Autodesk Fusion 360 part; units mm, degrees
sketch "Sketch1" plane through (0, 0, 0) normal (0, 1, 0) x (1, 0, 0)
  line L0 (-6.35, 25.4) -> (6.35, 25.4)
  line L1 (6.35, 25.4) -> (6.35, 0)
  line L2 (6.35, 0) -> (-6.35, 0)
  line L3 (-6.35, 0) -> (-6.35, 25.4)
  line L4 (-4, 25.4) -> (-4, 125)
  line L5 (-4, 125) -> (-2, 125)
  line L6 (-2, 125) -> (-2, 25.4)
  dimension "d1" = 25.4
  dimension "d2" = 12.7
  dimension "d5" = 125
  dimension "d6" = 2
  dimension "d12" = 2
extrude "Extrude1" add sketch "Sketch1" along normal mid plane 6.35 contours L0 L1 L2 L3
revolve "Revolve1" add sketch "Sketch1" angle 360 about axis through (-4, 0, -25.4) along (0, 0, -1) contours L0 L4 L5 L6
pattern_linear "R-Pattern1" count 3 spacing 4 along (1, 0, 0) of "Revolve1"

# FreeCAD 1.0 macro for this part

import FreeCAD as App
import Part
import Sketcher
Q = App.Units.Quantity

doc = App.newDocument("Part")
body = doc.addObject("PartDesign::Body", "Body")

# Sketch on XZ plane
sketch1 = body.newObject("Sketcher::SketchObject", "Sketch")
sketch1.AttachmentSupport = (doc.getObject("XZ_Plane"), [""])
sketch1.MapMode = "FlatFace"
sketch1.addGeometry([
    Part.LineSegment(App.Vector(6, -25, 0), App.Vector(-6, -25, 0)),
    Part.LineSegment(App.Vector(-6, -25, 0), App.Vector(-6, 0, 0)),
    Part.LineSegment(App.Vector(-6, 0, 0), App.Vector(6, 0, 0)),
    Part.LineSegment(App.Vector(6, 0, 0), App.Vector(6, -25, 0)),
], False)
sketch1.addConstraint([
    Sketcher.Constraint("Coincident", 0, 2, 1, 1),
    Sketcher.Constraint("Coincident", 1, 2, 2, 1),
    Sketcher.Constraint("Coincident", 2, 2, 3, 1),
    Sketcher.Constraint("Coincident", 3, 2, 0, 1),
    Sketcher.Constraint("Horizontal", 0),
    Sketcher.Constraint("Vertical", 1),
    Sketcher.Constraint("Horizontal", 2),
    Sketcher.Constraint("Vertical", 3),
    Sketcher.Constraint("Symmetric", 1, 2, 2, 2, -1, 1),
    Sketcher.Constraint("DistanceY", 1, 1, 1, 2, Q("1 in")),
    Sketcher.Constraint("DistanceX", 0, 2, 0, 1, Q("0.5 in")),
])
pad1 = body.newObject("PartDesign::Pad", "Pad")
pad1.Profile = sketch1
pad1.Length = Q("0.25 in")
pad1.Midplane = True

# Sketch on XZ plane
sketch2 = body.newObject("Sketcher::SketchObject", "Sketch001")
sketch2.AttachmentSupport = (doc.getObject("XZ_Plane"), [""])
sketch2.MapMode = "FlatFace"
sketch2.addGeometry([
    Part.LineSegment(App.Vector(-4, -125, 0), App.Vector(-4, -25.4, 0)),
    Part.LineSegment(App.Vector(-4, -25.4, 0), App.Vector(-2, -25.4, 0)),
    Part.LineSegment(App.Vector(-2, -25.4, 0), App.Vector(-2, -125, 0)),
    Part.LineSegment(App.Vector(-2, -125, 0), App.Vector(-4, -125, 0)),
], False)
sketch2.addGeometry(Part.LineSegment(App.Vector(-4, -25.4, 0), App.Vector(-4, -125, 0)), True)  # axis
sketch2.addConstraint([
    Sketcher.Constraint("Coincident", 0, 2, 1, 1),
    Sketcher.Constraint("Coincident", 1, 2, 2, 1),
    Sketcher.Constraint("Coincident", 2, 2, 3, 1),
    Sketcher.Constraint("Coincident", 3, 2, 0, 1),
    Sketcher.Constraint("Vertical", 0),
    Sketcher.Constraint("Horizontal", 1),
    Sketcher.Constraint("Vertical", 2),
    Sketcher.Constraint("Horizontal", 3),
    Sketcher.Constraint("Vertical", 4),
    Sketcher.Constraint("Coincident", 4, 1, 0, 2),
    Sketcher.Constraint("Horizontal", 2, 2, 4, 2),
    Sketcher.Constraint("DistanceY", 0, 2, -1, 1, Q("1 in")),
    Sketcher.Constraint("DistanceX", 1, 1, 1, 2, 2.0),
    Sketcher.Constraint("DistanceX", 1, 2, -1, 1, 2.0),
    Sketcher.Constraint("DistanceY", 2, 2, -1, 1, 125.0),
])
revolution = body.newObject("PartDesign::Revolution", "Revolution")
revolution.Profile = sketch2
revolution.ReferenceAxis = (sketch2, ["Axis0"])
revolution.Angle = 360
doc.recompute()

linearpattern = body.newObject("PartDesign::LinearPattern", "LinearPattern")
linearpattern.Originals = [revolution]
linearpattern.Direction = (doc.getObject("X_Axis"), [""])
linearpattern.Mode = "offset"
linearpattern.Offset = 4
linearpattern.Occurrences = 3
body.Tip = linearpattern

doc.recompute()
